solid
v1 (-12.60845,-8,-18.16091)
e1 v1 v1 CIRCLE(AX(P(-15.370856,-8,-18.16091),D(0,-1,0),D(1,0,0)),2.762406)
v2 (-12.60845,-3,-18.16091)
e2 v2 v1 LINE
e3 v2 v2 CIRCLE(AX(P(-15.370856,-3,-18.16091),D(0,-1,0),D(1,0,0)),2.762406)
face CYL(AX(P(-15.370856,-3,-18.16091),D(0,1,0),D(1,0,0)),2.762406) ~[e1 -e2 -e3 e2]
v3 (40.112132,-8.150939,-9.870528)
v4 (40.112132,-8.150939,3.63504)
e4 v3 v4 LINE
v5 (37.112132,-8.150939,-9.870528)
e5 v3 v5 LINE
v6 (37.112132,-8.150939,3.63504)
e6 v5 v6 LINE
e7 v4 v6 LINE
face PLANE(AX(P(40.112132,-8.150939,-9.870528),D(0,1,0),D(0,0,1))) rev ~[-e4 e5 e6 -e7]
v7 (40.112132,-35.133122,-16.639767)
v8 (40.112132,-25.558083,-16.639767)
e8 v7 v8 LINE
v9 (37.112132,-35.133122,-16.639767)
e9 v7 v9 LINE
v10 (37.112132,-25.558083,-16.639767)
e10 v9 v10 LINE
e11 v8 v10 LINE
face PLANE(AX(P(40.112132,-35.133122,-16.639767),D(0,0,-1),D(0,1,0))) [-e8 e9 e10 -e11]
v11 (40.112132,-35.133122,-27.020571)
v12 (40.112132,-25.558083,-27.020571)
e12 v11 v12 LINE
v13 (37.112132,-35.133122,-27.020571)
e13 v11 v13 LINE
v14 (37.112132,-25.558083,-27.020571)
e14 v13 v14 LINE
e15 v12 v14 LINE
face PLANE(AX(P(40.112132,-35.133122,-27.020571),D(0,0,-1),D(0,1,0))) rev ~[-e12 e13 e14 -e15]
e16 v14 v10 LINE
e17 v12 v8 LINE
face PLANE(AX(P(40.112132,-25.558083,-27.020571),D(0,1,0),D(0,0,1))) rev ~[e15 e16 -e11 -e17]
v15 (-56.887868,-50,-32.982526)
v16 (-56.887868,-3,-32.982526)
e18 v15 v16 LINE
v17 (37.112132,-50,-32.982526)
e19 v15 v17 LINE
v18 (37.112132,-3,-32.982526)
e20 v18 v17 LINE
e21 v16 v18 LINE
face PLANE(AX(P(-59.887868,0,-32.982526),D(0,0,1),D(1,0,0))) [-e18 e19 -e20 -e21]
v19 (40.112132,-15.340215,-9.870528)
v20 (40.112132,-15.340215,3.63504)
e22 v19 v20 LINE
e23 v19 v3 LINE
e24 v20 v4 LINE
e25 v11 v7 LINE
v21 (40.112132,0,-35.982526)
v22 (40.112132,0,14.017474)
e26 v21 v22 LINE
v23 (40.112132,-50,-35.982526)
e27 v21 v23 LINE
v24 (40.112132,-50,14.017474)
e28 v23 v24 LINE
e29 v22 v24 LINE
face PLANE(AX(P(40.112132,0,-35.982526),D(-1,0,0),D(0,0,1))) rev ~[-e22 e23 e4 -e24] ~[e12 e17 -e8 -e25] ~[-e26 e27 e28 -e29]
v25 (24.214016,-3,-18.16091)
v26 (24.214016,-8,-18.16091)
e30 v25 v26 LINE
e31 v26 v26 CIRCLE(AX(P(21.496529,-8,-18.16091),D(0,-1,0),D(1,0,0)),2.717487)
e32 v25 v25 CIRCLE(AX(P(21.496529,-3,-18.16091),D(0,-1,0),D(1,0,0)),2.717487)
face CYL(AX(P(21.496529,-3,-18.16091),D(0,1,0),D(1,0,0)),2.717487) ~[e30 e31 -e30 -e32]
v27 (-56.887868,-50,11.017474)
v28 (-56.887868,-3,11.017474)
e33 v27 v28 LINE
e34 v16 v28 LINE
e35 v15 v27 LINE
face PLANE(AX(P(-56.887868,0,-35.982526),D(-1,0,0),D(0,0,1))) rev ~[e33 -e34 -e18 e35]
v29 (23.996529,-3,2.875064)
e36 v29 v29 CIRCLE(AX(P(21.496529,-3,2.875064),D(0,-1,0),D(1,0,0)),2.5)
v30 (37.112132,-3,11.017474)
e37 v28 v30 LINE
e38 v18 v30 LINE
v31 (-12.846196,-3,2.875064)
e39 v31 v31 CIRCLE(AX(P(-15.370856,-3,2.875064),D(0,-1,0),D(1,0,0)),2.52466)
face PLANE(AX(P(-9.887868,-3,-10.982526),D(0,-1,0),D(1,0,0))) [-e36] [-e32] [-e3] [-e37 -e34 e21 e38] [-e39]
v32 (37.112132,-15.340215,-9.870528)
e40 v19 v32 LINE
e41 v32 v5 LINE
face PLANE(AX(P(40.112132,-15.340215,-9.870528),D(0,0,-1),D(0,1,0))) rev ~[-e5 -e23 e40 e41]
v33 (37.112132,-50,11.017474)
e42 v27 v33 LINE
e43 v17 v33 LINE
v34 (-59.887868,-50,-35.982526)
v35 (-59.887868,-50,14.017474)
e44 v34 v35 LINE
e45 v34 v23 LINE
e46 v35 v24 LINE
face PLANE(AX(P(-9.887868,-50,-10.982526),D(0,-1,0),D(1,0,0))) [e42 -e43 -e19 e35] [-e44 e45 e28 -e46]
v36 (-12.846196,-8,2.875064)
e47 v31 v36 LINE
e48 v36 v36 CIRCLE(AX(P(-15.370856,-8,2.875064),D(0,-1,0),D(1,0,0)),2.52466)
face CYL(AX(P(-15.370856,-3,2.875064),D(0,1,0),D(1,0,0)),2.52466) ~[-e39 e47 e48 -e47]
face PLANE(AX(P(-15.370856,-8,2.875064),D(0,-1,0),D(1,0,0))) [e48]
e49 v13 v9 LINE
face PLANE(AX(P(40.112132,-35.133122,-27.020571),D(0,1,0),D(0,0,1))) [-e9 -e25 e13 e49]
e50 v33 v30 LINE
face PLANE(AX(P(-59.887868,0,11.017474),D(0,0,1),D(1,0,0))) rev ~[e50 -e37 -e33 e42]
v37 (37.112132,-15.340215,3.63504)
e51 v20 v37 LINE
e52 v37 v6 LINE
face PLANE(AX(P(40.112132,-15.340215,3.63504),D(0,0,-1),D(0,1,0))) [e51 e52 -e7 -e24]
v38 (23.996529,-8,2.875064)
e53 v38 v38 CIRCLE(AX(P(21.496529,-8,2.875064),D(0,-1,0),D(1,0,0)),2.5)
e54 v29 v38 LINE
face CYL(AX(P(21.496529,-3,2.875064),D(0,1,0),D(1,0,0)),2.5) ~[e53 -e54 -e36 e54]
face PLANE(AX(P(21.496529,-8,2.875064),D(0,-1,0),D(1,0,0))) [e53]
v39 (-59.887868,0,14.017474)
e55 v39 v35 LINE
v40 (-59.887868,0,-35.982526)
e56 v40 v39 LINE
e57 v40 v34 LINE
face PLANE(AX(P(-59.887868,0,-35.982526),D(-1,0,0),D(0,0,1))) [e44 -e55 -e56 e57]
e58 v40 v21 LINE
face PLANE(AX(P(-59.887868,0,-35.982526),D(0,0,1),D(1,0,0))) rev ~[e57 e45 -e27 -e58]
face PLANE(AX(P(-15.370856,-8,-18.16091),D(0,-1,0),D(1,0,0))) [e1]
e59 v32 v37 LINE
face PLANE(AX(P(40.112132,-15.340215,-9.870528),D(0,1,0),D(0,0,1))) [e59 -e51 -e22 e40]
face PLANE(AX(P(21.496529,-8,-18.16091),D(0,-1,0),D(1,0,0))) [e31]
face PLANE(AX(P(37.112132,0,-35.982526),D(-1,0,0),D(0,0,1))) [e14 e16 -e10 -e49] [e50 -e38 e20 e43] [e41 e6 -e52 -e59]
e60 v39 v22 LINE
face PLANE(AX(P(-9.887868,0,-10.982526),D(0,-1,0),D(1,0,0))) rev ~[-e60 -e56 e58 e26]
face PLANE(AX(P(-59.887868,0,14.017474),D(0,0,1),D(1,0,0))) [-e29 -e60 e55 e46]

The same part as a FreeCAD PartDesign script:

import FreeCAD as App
import Part
import Sketcher


def faces_at(feature, points):
    """Names of the faces that lie closest to the given points."""
    faces = feature.Shape.Faces
    near = lambda p: min(range(len(faces)), key=lambda i: faces[i].distToShape(Part.Vertex(*p))[0])
    return sorted({f"Face{near(p) + 1}" for p in points})

doc = App.newDocument("Part")
body = doc.addObject("PartDesign::Body", "Body")

# Sketch on XZ plane
sketch1 = body.newObject("Sketcher::SketchObject", "Sketch")
sketch1.AttachmentSupport = (doc.getObject("XZ_Plane"), [""])
sketch1.MapMode = "FlatFace"
sketch1.addGeometry([
    Part.LineSegment(App.Vector(-60, 14, 0), App.Vector(-60, -36, 0)),
    Part.LineSegment(App.Vector(-60, -36, 0), App.Vector(40, -36, 0)),
    Part.LineSegment(App.Vector(40, -36, 0), App.Vector(40, 14, 0)),
    Part.LineSegment(App.Vector(40, 14, 0), App.Vector(-60, 14, 0)),
], False)
sketch1.addConstraint([
    Sketcher.Constraint("Coincident", 0, 2, 1, 1),
    Sketcher.Constraint("Coincident", 1, 2, 2, 1),
    Sketcher.Constraint("Coincident", 2, 2, 3, 1),
    Sketcher.Constraint("Coincident", 3, 2, 0, 1),
    Sketcher.Constraint("Vertical", 0),
    Sketcher.Constraint("Horizontal", 1),
    Sketcher.Constraint("Vertical", 2),
    Sketcher.Constraint("Horizontal", 3),
    Sketcher.Constraint("DistanceX", 1, 1, 1, 2, 100.0),
    Sketcher.Constraint("DistanceY", 0, 2, 0, 1, 50.0),
    Sketcher.Constraint("DistanceX", 0, 2, -1, 1, 59.887868),
    Sketcher.Constraint("DistanceY", 0, 2, -1, 1, 35.982526),
])
pad1 = body.newObject("PartDesign::Pad", "Pad")
pad1.Profile = sketch1
pad1.Length = 50
doc.recompute()

thickness = body.newObject("PartDesign::Thickness", "Thickness")
thickness.Base = (pad1, faces_at(pad1, [(-9.888, -50, -10.983)]))
thickness.Value = 3
thickness.Reversed = True
thickness.Join = "Arc"

# Sketch on YZ plane
sketch2 = body.newObject("Sketcher::SketchObject", "Sketch001")
sketch2.AttachmentSupport = (doc.getObject("YZ_Plane"), [""])
sketch2.MapMode = "FlatFace"
sketch2.AttachmentOffset = App.Placement(App.Vector(0, 0, 40.112132), App.Rotation())
sketch2.addGeometry([
    Part.LineSegment(App.Vector(-15, 4, 0), App.Vector(-15, -10, 0)),
    Part.LineSegment(App.Vector(-15, -10, 0), App.Vector(-8, -10, 0)),
    Part.LineSegment(App.Vector(-8, -10, 0), App.Vector(-8, 4, 0)),
    Part.LineSegment(App.Vector(-8, 4, 0), App.Vector(-15, 4, 0)),
], False)
sketch2.addConstraint([
    Sketcher.Constraint("Coincident", 0, 2, 1, 1),
    Sketcher.Constraint("Coincident", 1, 2, 2, 1),
    Sketcher.Constraint("Coincident", 2, 2, 3, 1),
    Sketcher.Constraint("Coincident", 3, 2, 0, 1),
    Sketcher.Constraint("Vertical", 0),
    Sketcher.Constraint("Horizontal", 1),
    Sketcher.Constraint("Vertical", 2),
    Sketcher.Constraint("Horizontal", 3),
    Sketcher.Constraint("DistanceX", 1, 1, 1, 2, 7.189277),
    Sketcher.Constraint("DistanceY", 0, 2, 0, 1, 13.505568),
    Sketcher.Constraint("DistanceX", 1, 2, -1, 1, 8.150939),
    Sketcher.Constraint("DistanceY", -1, 1, 2, 2, 3.63504),
])
pocket1 = body.newObject("PartDesign::Pocket", "Pocket")
pocket1.Profile = sketch2
pocket1.Length = 3

# Sketch on YZ plane
sketch3 = body.newObject("Sketcher::SketchObject", "Sketch002")
sketch3.AttachmentSupport = (doc.getObject("YZ_Plane"), [""])
sketch3.MapMode = "FlatFace"
sketch3.AttachmentOffset = App.Placement(App.Vector(0, 0, 40.112132), App.Rotation())
sketch3.addGeometry([
    Part.LineSegment(App.Vector(-35, -17, 0), App.Vector(-35, -27, 0)),
    Part.LineSegment(App.Vector(-35, -27, 0), App.Vector(-26, -27, 0)),
    Part.LineSegment(App.Vector(-26, -27, 0), App.Vector(-26, -17, 0)),
    Part.LineSegment(App.Vector(-26, -17, 0), App.Vector(-35, -17, 0)),
], False)
sketch3.addConstraint([
    Sketcher.Constraint("Coincident", 0, 2, 1, 1),
    Sketcher.Constraint("Coincident", 1, 2, 2, 1),
    Sketcher.Constraint("Coincident", 2, 2, 3, 1),
    Sketcher.Constraint("Coincident", 3, 2, 0, 1),
    Sketcher.Constraint("Vertical", 0),
    Sketcher.Constraint("Horizontal", 1),
    Sketcher.Constraint("Vertical", 2),
    Sketcher.Constraint("Horizontal", 3),
    Sketcher.Constraint("DistanceX", 1, 1, 1, 2, 9.575039),
    Sketcher.Constraint("DistanceY", 0, 2, 0, 1, 10.380805),
    Sketcher.Constraint("DistanceY", 0, 2, -1, 1, 27.020571),
    Sketcher.Constraint("DistanceX", 0, 2, -1, 1, 35.133122),
])
pocket2 = body.newObject("PartDesign::Pocket", "Pocket001")
pocket2.Profile = sketch3
pocket2.Length = 3

# Sketch on XZ plane
sketch4 = body.newObject("Sketcher::SketchObject", "Sketch003")
sketch4.AttachmentSupport = (doc.getObject("XZ_Plane"), [""])
sketch4.MapMode = "FlatFace"
sketch4.AttachmentOffset = App.Placement(App.Vector(0, 0, 3), App.Rotation())
sketch4.addGeometry(Part.Circle(App.Vector(21.5, 2.9, 0), App.Vector(0, 0, 1), 2.5), False)
sketch4.addConstraint([
    Sketcher.Constraint("Diameter", 0, 5.0),
    Sketcher.Constraint("DistanceX", -1, 1, 0, 3, 21.496529),
    Sketcher.Constraint("DistanceY", -1, 1, 0, 3, 2.875064),
])
pad2 = body.newObject("PartDesign::Pad", "Pad001")
pad2.Profile = sketch4
pad2.Length = 5

# Sketch on XZ plane
sketch5 = body.newObject("Sketcher::SketchObject", "Sketch004")
sketch5.AttachmentSupport = (doc.getObject("XZ_Plane"), [""])
sketch5.MapMode = "FlatFace"
sketch5.AttachmentOffset = App.Placement(App.Vector(0, 0, 3), App.Rotation())
sketch5.addGeometry(Part.Circle(App.Vector(21.5, -18.2, 0), App.Vector(0, 0, 1), 2.7), False)
sketch5.addConstraint([
    Sketcher.Constraint("Diameter", 0, 5.434974),
    Sketcher.Constraint("DistanceX", -1, 1, 0, 3, 21.496529),
    Sketcher.Constraint("DistanceY", 0, 3, -1, 1, 18.16091),
])
pad3 = body.newObject("PartDesign::Pad", "Pad002")
pad3.Profile = sketch5
pad3.Length = 5

# Sketch on XZ plane
sketch6 = body.newObject("Sketcher::SketchObject", "Sketch005")
sketch6.AttachmentSupport = (doc.getObject("XZ_Plane"), [""])
sketch6.MapMode = "FlatFace"
sketch6.AttachmentOffset = App.Placement(App.Vector(0, 0, 3), App.Rotation())
sketch6.addGeometry(Part.Circle(App.Vector(-15.4, -18.2, 0), App.Vector(0, 0, 1), 2.8), False)
sketch6.addConstraint([
    Sketcher.Constraint("Diameter", 0, 5.524812),
    Sketcher.Constraint("DistanceY", 0, 3, -1, 1, 18.16091),
    Sketcher.Constraint("DistanceX", 0, 3, -1, 1, 15.370856),
])
pad4 = body.newObject("PartDesign::Pad", "Pad003")
pad4.Profile = sketch6
pad4.Length = 5

# Sketch on XZ plane
sketch7 = body.newObject("Sketcher::SketchObject", "Sketch006")
sketch7.AttachmentSupport = (doc.getObject("XZ_Plane"), [""])
sketch7.MapMode = "FlatFace"
sketch7.AttachmentOffset = App.Placement(App.Vector(0, 0, 3), App.Rotation())
sketch7.addGeometry(Part.Circle(App.Vector(-15.4, 2.9, 0), App.Vector(0, 0, 1), 2.5), False)
sketch7.addConstraint([
    Sketcher.Constraint("Diameter", 0, 5.04932),
    Sketcher.Constraint("DistanceX", 0, 3, -1, 1, 15.370856),
    Sketcher.Constraint("DistanceY", -1, 1, 0, 3, 2.875064),
])
pad5 = body.newObject("PartDesign::Pad", "Pad004")
pad5.Profile = sketch7
pad5.Length = 5

doc.recompute()
